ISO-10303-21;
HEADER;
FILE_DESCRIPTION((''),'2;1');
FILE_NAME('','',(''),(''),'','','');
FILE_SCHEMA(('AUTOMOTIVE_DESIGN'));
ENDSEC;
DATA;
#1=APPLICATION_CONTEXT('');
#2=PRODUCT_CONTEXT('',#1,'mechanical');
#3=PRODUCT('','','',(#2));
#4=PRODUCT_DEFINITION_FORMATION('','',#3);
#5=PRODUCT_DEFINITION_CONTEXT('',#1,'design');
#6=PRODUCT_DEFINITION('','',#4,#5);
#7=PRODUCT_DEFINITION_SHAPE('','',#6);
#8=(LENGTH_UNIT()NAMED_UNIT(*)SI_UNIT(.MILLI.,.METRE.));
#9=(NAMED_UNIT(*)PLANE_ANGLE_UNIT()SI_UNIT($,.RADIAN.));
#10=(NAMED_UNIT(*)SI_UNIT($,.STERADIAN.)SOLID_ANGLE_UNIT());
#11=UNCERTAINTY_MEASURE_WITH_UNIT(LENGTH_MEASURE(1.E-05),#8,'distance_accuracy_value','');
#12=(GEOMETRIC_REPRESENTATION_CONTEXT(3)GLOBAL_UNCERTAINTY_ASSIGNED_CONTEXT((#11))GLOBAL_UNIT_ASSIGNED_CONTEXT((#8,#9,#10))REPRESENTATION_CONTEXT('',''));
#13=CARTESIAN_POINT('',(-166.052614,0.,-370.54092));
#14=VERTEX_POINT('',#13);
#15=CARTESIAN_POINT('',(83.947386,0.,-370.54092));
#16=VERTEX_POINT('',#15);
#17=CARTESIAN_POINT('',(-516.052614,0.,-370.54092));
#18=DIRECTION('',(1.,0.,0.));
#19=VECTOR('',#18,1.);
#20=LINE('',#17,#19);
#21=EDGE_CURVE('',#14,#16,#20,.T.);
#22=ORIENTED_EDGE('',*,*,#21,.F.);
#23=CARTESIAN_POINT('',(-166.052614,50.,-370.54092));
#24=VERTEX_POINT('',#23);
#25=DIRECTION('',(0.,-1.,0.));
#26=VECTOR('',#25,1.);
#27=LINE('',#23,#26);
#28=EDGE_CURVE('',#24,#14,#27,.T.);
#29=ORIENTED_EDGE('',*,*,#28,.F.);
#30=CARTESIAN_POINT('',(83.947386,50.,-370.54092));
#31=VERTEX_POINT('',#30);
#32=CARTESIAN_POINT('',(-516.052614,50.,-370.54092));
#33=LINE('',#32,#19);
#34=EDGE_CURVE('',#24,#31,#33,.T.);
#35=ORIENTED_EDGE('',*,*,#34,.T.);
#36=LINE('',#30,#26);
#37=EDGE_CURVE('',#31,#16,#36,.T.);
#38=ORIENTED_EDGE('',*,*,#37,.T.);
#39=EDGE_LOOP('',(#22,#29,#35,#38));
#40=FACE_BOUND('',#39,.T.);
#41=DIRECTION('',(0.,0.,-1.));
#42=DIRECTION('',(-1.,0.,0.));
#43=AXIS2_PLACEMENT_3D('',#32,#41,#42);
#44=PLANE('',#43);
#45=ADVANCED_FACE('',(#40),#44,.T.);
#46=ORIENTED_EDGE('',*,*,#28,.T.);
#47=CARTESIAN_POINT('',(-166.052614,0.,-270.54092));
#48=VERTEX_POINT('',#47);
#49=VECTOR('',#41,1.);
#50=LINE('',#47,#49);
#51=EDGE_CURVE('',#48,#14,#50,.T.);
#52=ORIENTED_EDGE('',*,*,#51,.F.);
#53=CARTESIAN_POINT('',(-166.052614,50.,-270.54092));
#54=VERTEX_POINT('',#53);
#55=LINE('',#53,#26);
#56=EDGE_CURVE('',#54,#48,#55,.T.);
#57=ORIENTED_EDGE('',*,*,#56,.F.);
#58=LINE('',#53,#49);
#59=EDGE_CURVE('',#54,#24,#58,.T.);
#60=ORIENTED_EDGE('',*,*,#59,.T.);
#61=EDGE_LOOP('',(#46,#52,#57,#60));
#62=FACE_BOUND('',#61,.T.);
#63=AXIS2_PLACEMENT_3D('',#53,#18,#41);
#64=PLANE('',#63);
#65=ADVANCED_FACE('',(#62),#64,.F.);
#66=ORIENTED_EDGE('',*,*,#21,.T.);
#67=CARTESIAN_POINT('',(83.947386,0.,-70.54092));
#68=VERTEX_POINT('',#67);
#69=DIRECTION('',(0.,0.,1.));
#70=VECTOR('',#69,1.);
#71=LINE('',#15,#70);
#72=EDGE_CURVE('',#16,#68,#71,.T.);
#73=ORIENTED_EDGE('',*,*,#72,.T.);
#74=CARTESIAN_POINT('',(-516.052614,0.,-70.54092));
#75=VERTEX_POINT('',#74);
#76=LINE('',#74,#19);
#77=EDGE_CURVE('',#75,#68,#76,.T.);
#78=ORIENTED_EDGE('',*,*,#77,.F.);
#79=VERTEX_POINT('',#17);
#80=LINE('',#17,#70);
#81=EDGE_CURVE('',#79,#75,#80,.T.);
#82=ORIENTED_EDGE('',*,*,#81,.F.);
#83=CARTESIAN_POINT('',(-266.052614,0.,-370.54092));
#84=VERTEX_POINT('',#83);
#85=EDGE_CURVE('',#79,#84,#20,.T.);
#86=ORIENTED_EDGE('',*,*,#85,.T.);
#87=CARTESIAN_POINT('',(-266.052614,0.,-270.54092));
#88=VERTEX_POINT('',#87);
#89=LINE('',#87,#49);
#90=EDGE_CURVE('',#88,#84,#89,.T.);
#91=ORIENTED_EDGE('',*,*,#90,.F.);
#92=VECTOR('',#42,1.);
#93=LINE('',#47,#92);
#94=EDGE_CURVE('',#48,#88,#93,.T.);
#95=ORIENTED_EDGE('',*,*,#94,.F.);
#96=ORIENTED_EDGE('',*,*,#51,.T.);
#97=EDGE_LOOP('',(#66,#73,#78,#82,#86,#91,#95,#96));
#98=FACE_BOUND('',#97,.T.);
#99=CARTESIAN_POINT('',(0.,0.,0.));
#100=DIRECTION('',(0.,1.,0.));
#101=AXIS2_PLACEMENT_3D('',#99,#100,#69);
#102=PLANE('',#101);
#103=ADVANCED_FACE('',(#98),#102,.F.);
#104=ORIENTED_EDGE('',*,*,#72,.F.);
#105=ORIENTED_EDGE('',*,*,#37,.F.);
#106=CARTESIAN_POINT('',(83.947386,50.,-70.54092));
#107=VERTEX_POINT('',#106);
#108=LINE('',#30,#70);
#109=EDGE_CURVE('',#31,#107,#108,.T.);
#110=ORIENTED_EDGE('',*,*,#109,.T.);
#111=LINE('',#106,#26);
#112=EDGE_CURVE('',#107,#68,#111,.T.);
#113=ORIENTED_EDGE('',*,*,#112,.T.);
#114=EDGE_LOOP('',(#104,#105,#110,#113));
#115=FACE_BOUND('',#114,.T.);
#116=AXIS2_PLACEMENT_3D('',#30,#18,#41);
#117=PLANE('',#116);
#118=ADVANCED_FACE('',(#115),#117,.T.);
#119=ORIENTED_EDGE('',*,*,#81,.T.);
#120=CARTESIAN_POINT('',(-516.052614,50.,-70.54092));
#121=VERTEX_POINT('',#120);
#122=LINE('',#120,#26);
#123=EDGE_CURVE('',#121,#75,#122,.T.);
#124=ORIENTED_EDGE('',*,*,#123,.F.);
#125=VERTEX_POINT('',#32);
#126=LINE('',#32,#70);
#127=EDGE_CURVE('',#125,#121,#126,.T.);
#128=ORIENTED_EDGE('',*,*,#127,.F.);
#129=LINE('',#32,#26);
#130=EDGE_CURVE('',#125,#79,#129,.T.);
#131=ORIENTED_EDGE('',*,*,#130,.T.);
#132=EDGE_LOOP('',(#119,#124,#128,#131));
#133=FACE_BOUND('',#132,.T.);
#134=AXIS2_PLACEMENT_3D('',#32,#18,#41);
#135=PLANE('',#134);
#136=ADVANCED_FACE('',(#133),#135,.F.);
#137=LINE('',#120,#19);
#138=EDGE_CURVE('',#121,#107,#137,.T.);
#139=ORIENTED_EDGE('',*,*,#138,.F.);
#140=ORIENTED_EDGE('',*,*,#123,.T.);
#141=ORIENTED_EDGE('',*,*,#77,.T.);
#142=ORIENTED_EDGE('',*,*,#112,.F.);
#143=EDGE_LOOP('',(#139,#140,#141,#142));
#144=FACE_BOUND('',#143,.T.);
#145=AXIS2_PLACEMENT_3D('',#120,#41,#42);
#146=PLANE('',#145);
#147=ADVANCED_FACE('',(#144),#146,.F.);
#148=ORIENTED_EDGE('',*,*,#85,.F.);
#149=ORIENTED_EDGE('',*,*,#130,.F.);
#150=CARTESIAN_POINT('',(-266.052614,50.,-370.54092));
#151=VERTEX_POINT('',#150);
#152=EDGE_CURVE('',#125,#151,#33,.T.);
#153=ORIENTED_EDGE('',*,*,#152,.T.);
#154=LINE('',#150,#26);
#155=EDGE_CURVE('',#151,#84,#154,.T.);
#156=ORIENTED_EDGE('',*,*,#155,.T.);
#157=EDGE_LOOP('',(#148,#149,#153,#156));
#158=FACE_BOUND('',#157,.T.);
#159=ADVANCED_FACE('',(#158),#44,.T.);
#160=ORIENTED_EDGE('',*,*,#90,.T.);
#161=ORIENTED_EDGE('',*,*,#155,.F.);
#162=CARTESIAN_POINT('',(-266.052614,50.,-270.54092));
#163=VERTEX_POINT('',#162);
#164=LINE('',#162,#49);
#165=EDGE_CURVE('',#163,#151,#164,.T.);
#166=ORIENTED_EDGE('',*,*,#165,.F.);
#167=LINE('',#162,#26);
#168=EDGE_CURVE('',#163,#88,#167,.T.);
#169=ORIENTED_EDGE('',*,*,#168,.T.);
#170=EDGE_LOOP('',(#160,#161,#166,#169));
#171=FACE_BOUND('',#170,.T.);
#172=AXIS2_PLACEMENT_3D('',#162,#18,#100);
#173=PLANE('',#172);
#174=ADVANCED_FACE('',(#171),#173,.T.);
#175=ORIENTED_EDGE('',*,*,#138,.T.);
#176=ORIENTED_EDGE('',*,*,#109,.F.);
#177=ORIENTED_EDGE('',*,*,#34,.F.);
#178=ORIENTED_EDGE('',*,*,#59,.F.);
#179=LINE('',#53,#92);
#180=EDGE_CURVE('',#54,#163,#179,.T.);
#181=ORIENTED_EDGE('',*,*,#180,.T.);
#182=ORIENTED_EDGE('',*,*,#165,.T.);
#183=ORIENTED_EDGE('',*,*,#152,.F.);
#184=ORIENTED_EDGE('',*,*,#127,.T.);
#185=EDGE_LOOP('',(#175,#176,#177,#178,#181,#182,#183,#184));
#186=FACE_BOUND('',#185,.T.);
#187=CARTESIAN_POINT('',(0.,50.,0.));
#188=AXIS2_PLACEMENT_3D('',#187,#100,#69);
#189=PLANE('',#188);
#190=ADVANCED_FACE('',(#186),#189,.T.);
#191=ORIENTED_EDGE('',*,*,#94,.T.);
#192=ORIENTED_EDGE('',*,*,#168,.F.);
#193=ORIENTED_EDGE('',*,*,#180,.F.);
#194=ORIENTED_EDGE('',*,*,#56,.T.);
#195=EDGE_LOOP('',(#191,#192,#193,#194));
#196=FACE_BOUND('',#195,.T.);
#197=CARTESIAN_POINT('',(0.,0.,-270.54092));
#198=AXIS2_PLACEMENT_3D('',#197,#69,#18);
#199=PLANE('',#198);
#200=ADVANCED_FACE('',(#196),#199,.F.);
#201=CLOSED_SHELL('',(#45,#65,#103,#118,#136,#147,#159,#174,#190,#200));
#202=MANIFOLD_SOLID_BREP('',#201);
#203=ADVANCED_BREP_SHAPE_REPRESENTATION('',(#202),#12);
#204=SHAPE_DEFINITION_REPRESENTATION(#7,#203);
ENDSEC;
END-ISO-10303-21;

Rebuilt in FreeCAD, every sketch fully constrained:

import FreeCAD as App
import Part
import Sketcher
from FreeCAD import Vector
Q = App.Units.Quantity

doc = App.newDocument("Part")
body = doc.addObject("PartDesign::Body", "Body")

# Sketch on XZ plane
sketch1 = body.newObject("Sketcher::SketchObject", "Sketch")
sketch1.AttachmentSupport = (doc.getObject("XZ_Plane"), [""])
sketch1.MapMode = "FlatFace"
sketch1.addGeometry(Part.LineSegment(Vector(-516, -371, 0), Vector(-516, -71, 0)), False)
sketch1.addGeometry(Part.LineSegment(Vector(-516, -71, 0), Vector(84, -71, 0)), False)
sketch1.addGeometry(Part.LineSegment(Vector(84, -71, 0), Vector(84, -371, 0)), False)
sketch1.addGeometry(Part.LineSegment(Vector(84, -371, 0), Vector(-516, -371, 0)), False)
sketch1.addConstraint(Sketcher.Constraint("Coincident", 0, 2, 1, 1))
sketch1.addConstraint(Sketcher.Constraint("Coincident", 1, 2, 2, 1))
sketch1.addConstraint(Sketcher.Constraint("Coincident", 2, 2, 3, 1))
sketch1.addConstraint(Sketcher.Constraint("Coincident", 3, 2, 0, 1))
sketch1.addConstraint(Sketcher.Constraint("Vertical", 0))
sketch1.addConstraint(Sketcher.Constraint("Horizontal", 1))
sketch1.addConstraint(Sketcher.Constraint("Vertical", 2))
sketch1.addConstraint(Sketcher.Constraint("Horizontal", 3))
sketch1.addConstraint(Sketcher.Constraint("DistanceX", 1, 1, 1, 2, Q("600 mm")))
sketch1.addConstraint(Sketcher.Constraint("DistanceY", 0, 1, 0, 2, Q("300 mm")))
sketch1.addConstraint(Sketcher.Constraint("DistanceY", 0, 2, -1, 1, Q("70.54092 mm")))
sketch1.addConstraint(Sketcher.Constraint("DistanceX", 0, 2, -1, 1, Q("516.052614 mm")))
pad1 = body.newObject("PartDesign::Pad", "Pad")
pad1.Profile = sketch1
pad1.Length = 50
pad1.Reversed = True

# Sketch on XY plane
sketch2 = body.newObject("Sketcher::SketchObject", "Sketch001")
sketch2.AttachmentSupport = (doc.getObject("XY_Plane"), [""])
sketch2.MapMode = "FlatFace"
sketch2.AttachmentOffset = App.Placement(Vector(0, 0, -370.54092), App.Rotation())
sketch2.addGeometry(Part.LineSegment(Vector(-166, 50, 0), Vector(-166, 0, 0)), False)
sketch2.addGeometry(Part.LineSegment(Vector(-166, 0, 0), Vector(-266, 0, 0)), False)
sketch2.addGeometry(Part.LineSegment(Vector(-266, 0, 0), Vector(-266, 50, 0)), False)
sketch2.addGeometry(Part.LineSegment(Vector(-266, 50, 0), Vector(-166, 50, 0)), False)
sketch2.addConstraint(Sketcher.Constraint("Coincident", 0, 2, 1, 1))
sketch2.addConstraint(Sketcher.Constraint("Coincident", 1, 2, 2, 1))
sketch2.addConstraint(Sketcher.Constraint("Coincident", 2, 2, 3, 1))
sketch2.addConstraint(Sketcher.Constraint("Coincident", 3, 2, 0, 1))
sketch2.addConstraint(Sketcher.Constraint("Vertical", 0))
sketch2.addConstraint(Sketcher.Constraint("Horizontal", 1))
sketch2.addConstraint(Sketcher.Constraint("Vertical", 2))
sketch2.addConstraint(Sketcher.Constraint("Horizontal", 3))
sketch2.addConstraint(Sketcher.Constraint("PointOnObject", 0, 2, -1))
sketch2.addConstraint(Sketcher.Constraint("DistanceX", 1, 2, 1, 1, Q("100 mm")))
sketch2.addConstraint(Sketcher.Constraint("DistanceY", 0, 2, 0, 1, Q("50 mm")))
sketch2.addConstraint(Sketcher.Constraint("DistanceX", 0, 2, -1, 1, Q("166.052614 mm")))
pocket1 = body.newObject("PartDesign::Pocket", "Pocket")
pocket1.Profile = sketch2
pocket1.Length = 100
pocket1.Reversed = True

doc.recompute()
